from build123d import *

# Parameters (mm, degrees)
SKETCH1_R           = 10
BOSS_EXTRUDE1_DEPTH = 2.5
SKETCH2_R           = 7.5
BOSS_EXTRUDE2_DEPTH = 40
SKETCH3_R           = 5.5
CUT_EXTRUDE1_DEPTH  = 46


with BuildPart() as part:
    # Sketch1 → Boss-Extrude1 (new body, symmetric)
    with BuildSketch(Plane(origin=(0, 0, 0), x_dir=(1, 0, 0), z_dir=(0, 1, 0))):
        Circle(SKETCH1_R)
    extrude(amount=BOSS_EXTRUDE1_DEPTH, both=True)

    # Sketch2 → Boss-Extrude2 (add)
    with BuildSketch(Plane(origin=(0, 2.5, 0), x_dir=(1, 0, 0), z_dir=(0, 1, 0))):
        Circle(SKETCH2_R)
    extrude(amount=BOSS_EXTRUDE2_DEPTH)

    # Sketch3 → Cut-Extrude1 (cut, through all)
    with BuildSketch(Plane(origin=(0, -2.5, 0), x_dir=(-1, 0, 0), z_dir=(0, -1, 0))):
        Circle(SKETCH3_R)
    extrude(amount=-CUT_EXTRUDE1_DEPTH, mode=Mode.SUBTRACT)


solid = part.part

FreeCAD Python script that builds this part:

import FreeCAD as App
import Part
import Sketcher
from FreeCAD import Vector

doc = App.newDocument("Part")
params = doc.addObject("Spreadsheet::Sheet", "Params")
for row, (alias, value) in enumerate([
    ("sketch1_diameter", "20 mm"),
    ("pad1_length", "5 mm"),
    ("sketch2_diameter", "15 mm"),
    ("pad2_length", "40 mm"),
    ("sketch3_diameter", "11 mm"),
], start=1):
    params.set(f"A{row}", alias)
    params.set(f"B{row}", "=" + value)
    params.setAlias(f"B{row}", alias)

body = doc.addObject("PartDesign::Body", "Body")

# Sketch on XZ plane
sketch1 = doc.addObject("Sketcher::SketchObject", "Sketch")
body.addObject(sketch1)
sketch1.AttachmentSupport = (doc.XZ_Plane, [""])
sketch1.MapMode = "FlatFace"
sketch1.addGeometry(Part.Circle(Vector(0, 0, 0), Vector(0, 0, 1), 10), False)
sketch1.addConstraint([
    Sketcher.Constraint("Coincident", 0, 3, -1, 1),
    Sketcher.Constraint("Diameter", 0, 20.0),
])
sketch1.setExpression("Constraints[1]", "Params.sketch1_diameter")
pad1 = doc.addObject("PartDesign::Pad", "Pad")
body.addObject(pad1)
pad1.Profile = sketch1
pad1.setExpression("Length", "Params.pad1_length")
pad1.Midplane = True

# Sketch on XZ plane
sketch2 = doc.addObject("Sketcher::SketchObject", "Sketch001")
body.addObject(sketch2)
sketch2.AttachmentSupport = (doc.XZ_Plane, [""])
sketch2.MapMode = "FlatFace"
sketch2.AttachmentOffset = App.Placement(Vector(0, 0, -2.5), App.Rotation())
sketch2.addGeometry(Part.Circle(Vector(0, 0, 0), Vector(0, 0, 1), 7.5), False)
sketch2.addConstraint([
    Sketcher.Constraint("Coincident", 0, 3, -1, 1),
    Sketcher.Constraint("Diameter", 0, 15.0),
])
sketch2.setExpression("Constraints[1]", "Params.sketch2_diameter")
pad2 = doc.addObject("PartDesign::Pad", "Pad001")
body.addObject(pad2)
pad2.Profile = sketch2
pad2.setExpression("Length", "Params.pad2_length")
pad2.Reversed = True

# Sketch on XZ plane
sketch3 = doc.addObject("Sketcher::SketchObject", "Sketch002")
body.addObject(sketch3)
sketch3.AttachmentSupport = (doc.XZ_Plane, [""])
sketch3.MapMode = "FlatFace"
sketch3.AttachmentOffset = App.Placement(Vector(0, 0, 2.5), App.Rotation())
sketch3.addGeometry(Part.Circle(Vector(0, 0, 0), Vector(0, 0, 1), 5.5), False)
sketch3.addConstraint([
    Sketcher.Constraint("Coincident", 0, 3, -1, 1),
    Sketcher.Constraint("Diameter", 0, 11.0),
])
sketch3.setExpression("Constraints[1]", "Params.sketch3_diameter")
pocket1 = doc.addObject("PartDesign::Pocket", "Pocket")
body.addObject(pocket1)
pocket1.Profile = sketch3
pocket1.Type = "ThroughAll"

doc.recompute()
